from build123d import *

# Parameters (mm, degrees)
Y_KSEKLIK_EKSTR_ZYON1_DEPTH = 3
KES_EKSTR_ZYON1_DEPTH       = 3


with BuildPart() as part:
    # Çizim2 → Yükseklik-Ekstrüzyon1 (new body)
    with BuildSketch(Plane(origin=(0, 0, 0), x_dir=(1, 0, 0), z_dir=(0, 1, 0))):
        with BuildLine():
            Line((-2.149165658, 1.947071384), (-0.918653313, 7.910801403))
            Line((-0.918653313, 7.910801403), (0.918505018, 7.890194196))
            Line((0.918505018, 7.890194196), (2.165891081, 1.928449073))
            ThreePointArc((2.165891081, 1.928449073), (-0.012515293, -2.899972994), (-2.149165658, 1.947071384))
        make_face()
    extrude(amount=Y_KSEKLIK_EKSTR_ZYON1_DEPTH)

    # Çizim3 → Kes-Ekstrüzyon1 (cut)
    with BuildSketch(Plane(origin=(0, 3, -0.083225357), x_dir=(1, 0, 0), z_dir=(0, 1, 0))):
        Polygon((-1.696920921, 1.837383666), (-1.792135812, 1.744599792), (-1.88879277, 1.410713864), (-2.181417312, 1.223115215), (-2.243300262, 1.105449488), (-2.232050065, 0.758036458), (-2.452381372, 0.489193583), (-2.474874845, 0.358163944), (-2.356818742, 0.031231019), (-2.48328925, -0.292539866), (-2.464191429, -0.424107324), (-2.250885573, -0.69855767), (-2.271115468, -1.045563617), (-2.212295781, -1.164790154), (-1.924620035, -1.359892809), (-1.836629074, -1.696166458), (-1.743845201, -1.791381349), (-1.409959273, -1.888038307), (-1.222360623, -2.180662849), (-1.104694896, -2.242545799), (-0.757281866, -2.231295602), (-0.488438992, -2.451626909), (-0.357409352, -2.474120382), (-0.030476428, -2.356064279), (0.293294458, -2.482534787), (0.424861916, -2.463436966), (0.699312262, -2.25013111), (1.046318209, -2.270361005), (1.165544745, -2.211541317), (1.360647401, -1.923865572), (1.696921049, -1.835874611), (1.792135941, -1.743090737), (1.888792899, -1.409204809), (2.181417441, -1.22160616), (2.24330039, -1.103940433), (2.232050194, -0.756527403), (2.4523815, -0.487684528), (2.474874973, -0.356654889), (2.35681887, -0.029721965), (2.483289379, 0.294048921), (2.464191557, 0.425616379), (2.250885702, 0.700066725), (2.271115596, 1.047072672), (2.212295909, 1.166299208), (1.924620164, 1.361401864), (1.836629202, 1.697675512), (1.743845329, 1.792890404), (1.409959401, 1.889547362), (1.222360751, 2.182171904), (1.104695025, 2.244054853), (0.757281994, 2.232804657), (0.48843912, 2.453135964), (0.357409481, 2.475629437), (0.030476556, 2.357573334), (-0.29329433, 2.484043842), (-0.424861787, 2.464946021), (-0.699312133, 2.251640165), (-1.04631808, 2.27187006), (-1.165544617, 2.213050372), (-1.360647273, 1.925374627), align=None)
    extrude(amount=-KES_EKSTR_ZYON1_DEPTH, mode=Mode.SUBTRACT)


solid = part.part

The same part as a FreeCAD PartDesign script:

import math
import FreeCAD as App
import Part
import Sketcher

V = App.Vector
Q = App.Units.Quantity


def add_polygon(sketch, points):
    """Adds a closed chain of lines whose ends are joined by coincident constraints."""
    first, n = sketch.GeometryCount, len(points)
    for a, b in zip(points, points[1:] + points[:1]):
        sketch.addGeometry(Part.LineSegment(App.Vector(*a, 0), App.Vector(*b, 0)), False)
    for i in range(n):
        sketch.addConstraint(Sketcher.Constraint("Coincident", first + i, 2, first + (i + 1) % n, 1))

doc = App.newDocument("Part")
body = doc.addObject("PartDesign::Body", "Body")

# Sketch on XZ plane
sketch1 = body.newObject("Sketcher::SketchObject", "Sketch")
sketch1.AttachmentSupport = (doc.getObject("XZ_Plane"), [""])
sketch1.MapMode = "FlatFace"
sketch1.addGeometry([
    Part.LineSegment(V(-0.9, -7.9, 0), V(-2.1, -1.9, 0)),
    Part.ArcOfCircle(Part.Circle(V(0, 0, 0), V(0, 0, 1), 2.9), math.radians(-42), math.radians(222)),
    Part.LineSegment(V(2.2, -1.9, 0), V(0.9, -7.9, 0)),
    Part.LineSegment(V(0.9, -7.9, 0), V(-0.9, -7.9, 0)),
], False)
sketch1.addConstraint([
    Sketcher.Constraint("Coincident", 0, 2, 1, 2),
    Sketcher.Constraint("Coincident", 1, 1, 2, 1),
    Sketcher.Constraint("Coincident", 2, 2, 3, 1),
    Sketcher.Constraint("Coincident", 3, 2, 0, 1),
    Sketcher.Constraint("Coincident", 1, 3, -1, 1),
    Sketcher.Constraint("Radius", 1, Q("2.9 mm")),
    Sketcher.Constraint("DistanceY", 3, 2, -1, 1, Q("7.910801 mm")),
    Sketcher.Constraint("DistanceY", 0, 2, -1, 1, Q("1.947071 mm")),
    Sketcher.Constraint("DistanceX", -1, 1, 1, 1, Q("2.165891 mm")),
    Sketcher.Constraint("DistanceX", 0, 2, 2, 2, Q("3.067671 mm")),
    Sketcher.Constraint("DistanceX", 3, 2, 2, 2, Q("1.837158 mm")),
    Sketcher.Constraint("Distance", 2, Q("6.090844 mm")),
])
pad1 = body.newObject("PartDesign::Pad", "Pad")
pad1.Profile = sketch1
pad1.Length = 3
pad1.Reversed = True

# Sketch on XZ plane
sketch2 = body.newObject("Sketcher::SketchObject", "Sketch001")
sketch2.AttachmentSupport = (doc.getObject("XZ_Plane"), [""])
sketch2.MapMode = "FlatFace"
sketch2.AttachmentOffset = App.Placement(V(0, 0, -3), App.Rotation())
add_polygon(sketch2, [(-1.696921, -1.920609), (-1.792136, -1.827825), (-1.888793, -1.493939), (-2.181417, -1.306341), (-2.2433, -1.188675), (-2.23205, -0.841262), (-2.452381, -0.572419), (-2.474875, -0.441389), (-2.356819, -0.114456), (-2.483289, 0.209315), (-2.464191, 0.340882), (-2.250886, 0.615332), (-2.271115, 0.962338), (-2.212296, 1.081565), (-1.92462, 1.276667), (-1.836629, 1.612941), (-1.743845, 1.708156), (-1.409959, 1.804813), (-1.222361, 2.097437), (-1.104695, 2.15932), (-0.757282, 2.14807), (-0.488439, 2.368402), (-0.357409, 2.390895), (-0.030476, 2.272839), (0.293294, 2.399309), (0.424862, 2.380212), (0.699312, 2.166906), (1.046318, 2.187136), (1.165545, 2.128316), (1.360647, 1.84064), (1.696921, 1.752649), (1.792136, 1.659865), (1.888793, 1.325979), (2.181417, 1.138381), (2.2433, 1.020715), (2.23205, 0.673302), (2.452381, 0.404459), (2.474875, 0.27343), (2.356819, -0.053503), (2.483289, -0.377274), (2.464192, -0.508842), (2.250886, -0.783292), (2.271116, -1.130298), (2.212296, -1.249525), (1.92462, -1.444627), (1.836629, -1.780901), (1.743845, -1.876116), (1.409959, -1.972773), (1.222361, -2.265397), (1.104695, -2.32728), (0.757282, -2.31603), (0.488439, -2.536361), (0.357409, -2.558855), (0.030477, -2.440799), (-0.293294, -2.567269), (-0.424862, -2.548171), (-0.699312, -2.334866), (-1.046318, -2.355095), (-1.165545, -2.296276), (-1.360647, -2.0086)])  # lines 0-59
sketch2.addConstraint([
    Sketcher.Constraint("DistanceX", 3, 2, -1, 1, Q("2.2433 mm")),
    Sketcher.Constraint("DistanceY", -1, 1, 20, 2, Q("2.368402 mm")),
    Sketcher.Constraint("DistanceX", -1, 1, 33, 2, Q("2.2433 mm")),
    Sketcher.Constraint("DistanceY", 41, 2, -1, 1, Q("1.130298 mm")),
    Sketcher.Constraint("DistanceY", 44, 2, -1, 1, Q("1.780901 mm")),
    Sketcher.Constraint("DistanceY", 52, 2, -1, 1, Q("2.440799 mm")),
    Sketcher.Constraint("DistanceY", 58, 2, -1, 1, Q("2.0086 mm")),
    Sketcher.Constraint("DistanceY", 1, 2, 2, 2, Q("0.187599 mm")),
    Sketcher.Constraint("DistanceX", 7, 2, 2, 2, Q("0.175401 mm")),
    Sketcher.Constraint("DistanceY", 5, 2, 9, 2, Q("0.913301 mm")),
    Sketcher.Constraint("DistanceX", 16, 2, 17, 2, Q("0.187599 mm")),
    Sketcher.Constraint("DistanceY", 17, 2, 22, 2, Q("0.175401 mm")),
    Sketcher.Constraint("DistanceX", 20, 2, 24, 2, Q("0.913301 mm")),
    Sketcher.Constraint("DistanceY", 32, 2, 31, 2, Q("0.187599 mm")),
    Sketcher.Constraint("DistanceX", 32, 2, 37, 2, Q("0.175401 mm")),
    Sketcher.Constraint("DistanceY", 39, 2, 35, 2, Q("0.913301 mm")),
    Sketcher.Constraint("DistanceX", 47, 2, 46, 2, Q("0.187599 mm")),
    Sketcher.Constraint("DistanceY", 52, 2, 47, 2, Q("0.175401 mm")),
    Sketcher.Constraint("DistanceX", 54, 2, 50, 2, Q("0.913301 mm")),
    Sketcher.Constraint("DistanceY", 1, 2, -1, 1, Q("1.493939 mm")),
    Sketcher.Constraint("DistanceX", 4, 2, -1, 1, Q("2.23205 mm")),
    Sketcher.Constraint("DistanceY", 4, 2, -1, 1, Q("0.841262 mm")),
    Sketcher.Constraint("DistanceX", 5, 2, -1, 1, Q("2.452381 mm")),
    Sketcher.Constraint("DistanceY", 5, 2, -1, 1, Q("0.572419 mm")),
    Sketcher.Constraint("DistanceY", 6, 2, -1, 1, Q("0.441389 mm")),
    Sketcher.Constraint("DistanceX", 7, 2, -1, 1, Q("2.356819 mm")),
    Sketcher.Constraint("DistanceX", 8, 2, -1, 1, Q("2.483289 mm")),
    Sketcher.Constraint("DistanceX", 9, 2, -1, 1, Q("2.464191 mm")),
    Sketcher.Constraint("DistanceY", -1, 1, 11, 2, Q("0.962338 mm")),
    Sketcher.Constraint("DistanceX", 13, 2, -1, 1, Q("1.92462 mm")),
    Sketcher.Constraint("DistanceX", 14, 2, -1, 1, Q("1.836629 mm")),
    Sketcher.Constraint("DistanceY", -1, 1, 14, 2, Q("1.612941 mm")),
    Sketcher.Constraint("DistanceX", 16, 2, -1, 1, Q("1.409959 mm")),
    Sketcher.Constraint("DistanceY", -1, 1, 18, 2, Q("2.15932 mm")),
    Sketcher.Constraint("DistanceX", 19, 2, -1, 1, Q("0.757282 mm")),
    Sketcher.Constraint("DistanceY", -1, 1, 19, 2, Q("2.14807 mm")),
    Sketcher.Constraint("DistanceX", 20, 2, -1, 1, Q("0.488439 mm")),
    Sketcher.Constraint("DistanceX", 21, 2, -1, 1, Q("0.357409 mm")),
    Sketcher.Constraint("DistanceY", -1, 1, 22, 2, Q("2.272839 mm")),
    Sketcher.Constraint("DistanceY", -1, 1, 23, 2, Q("2.399309 mm")),
    Sketcher.Constraint("DistanceY", -1, 1, 24, 2, Q("2.380212 mm")),
    Sketcher.Constraint("DistanceX", -1, 1, 26, 2, Q("1.046318 mm")),
    Sketcher.Constraint("DistanceY", -1, 1, 28, 2, Q("1.84064 mm")),
    Sketcher.Constraint("DistanceX", -1, 1, 29, 2, Q("1.696921 mm")),
    Sketcher.Constraint("DistanceY", -1, 1, 29, 2, Q("1.752649 mm")),
    Sketcher.Constraint("DistanceY", -1, 1, 31, 2, Q("1.325979 mm")),
    Sketcher.Constraint("DistanceX", -1, 1, 34, 2, Q("2.23205 mm")),
    Sketcher.Constraint("DistanceX", -1, 1, 35, 2, Q("2.452381 mm")),
    Sketcher.Constraint("DistanceY", -1, 1, 35, 2, Q("0.404459 mm")),
    Sketcher.Constraint("DistanceY", -1, 1, 36, 2, Q("0.27343 mm")),
    Sketcher.Constraint("DistanceX", -1, 1, 37, 2, Q("2.356819 mm")),
    Sketcher.Constraint("DistanceX", -1, 1, 38, 2, Q("2.483289 mm")),
    Sketcher.Constraint("DistanceX", -1, 1, 39, 2, Q("2.464192 mm")),
    Sketcher.Constraint("DistanceX", -1, 1, 43, 2, Q("1.92462 mm")),
    Sketcher.Constraint("DistanceX", -1, 1, 44, 2, Q("1.836629 mm")),
    Sketcher.Constraint("DistanceX", -1, 1, 46, 2, Q("1.409959 mm")),
    Sketcher.Constraint("DistanceY", 48, 2, -1, 1, Q("2.32728 mm")),
    Sketcher.Constraint("DistanceX", -1, 1, 49, 2, Q("0.757282 mm")),
    Sketcher.Constraint("DistanceY", 49, 2, -1, 1, Q("2.31603 mm")),
    Sketcher.Constraint("DistanceX", -1, 1, 50, 2, Q("0.488439 mm")),
    Sketcher.Constraint("DistanceY", 50, 2, -1, 1, Q("2.536361 mm")),
    Sketcher.Constraint("DistanceX", -1, 1, 51, 2, Q("0.357409 mm")),
    Sketcher.Constraint("DistanceY", 53, 2, -1, 1, Q("2.567269 mm")),
    Sketcher.Constraint("DistanceY", 54, 2, -1, 1, Q("2.548171 mm")),
    Sketcher.Constraint("DistanceX", 56, 2, -1, 1, Q("1.046318 mm")),
    Sketcher.Constraint("DistanceX", 59, 2, -1, 1, Q("1.696921 mm")),
    Sketcher.Constraint("DistanceY", 59, 2, -1, 1, Q("1.920609 mm")),
    Sketcher.Constraint("DistanceX", 2, 2, 0, 2, Q("0.389282 mm")),
    Sketcher.Constraint("DistanceY", 0, 2, 3, 2, Q("0.63915 mm")),
    Sketcher.Constraint("DistanceX", 5, 2, 1, 2, Q("0.563589 mm")),
    Sketcher.Constraint("DistanceY", 3, 2, 7, 2, Q("1.074218 mm")),
    Sketcher.Constraint("DistanceY", 7, 2, 8, 2, Q("0.323771 mm")),
    Sketcher.Constraint("DistanceY", 7, 2, 9, 2, Q("0.455338 mm")),
    Sketcher.Constraint("DistanceY", 9, 2, 10, 2, Q("0.27445 mm")),
    Sketcher.Constraint("DistanceX", 6, 2, 10, 2, Q("0.223989 mm")),
    Sketcher.Constraint("DistanceX", 11, 2, 10, 2, Q("0.02023 mm")),
    Sketcher.Constraint("DistanceX", 11, 2, 12, 2, Q("0.05882 mm")),
    Sketcher.Constraint("DistanceY", 8, 2, 12, 2, Q("0.87225 mm")),
    Sketcher.Constraint("DistanceY", 11, 2, 13, 2, Q("0.314329 mm")),
    Sketcher.Constraint("DistanceY", 13, 2, 15, 2, Q("0.431489 mm")),
    Sketcher.Constraint("DistanceX", 12, 2, 15, 2, Q("0.468451 mm")),
    Sketcher.Constraint("DistanceY", 14, 2, 16, 2, Q("0.191872 mm")),
    Sketcher.Constraint("DistanceX", 15, 2, 18, 2, Q("0.63915 mm")),
    Sketcher.Constraint("DistanceX", 18, 2, 22, 2, Q("1.074218 mm")),
    Sketcher.Constraint("DistanceX", 22, 2, 23, 2, Q("0.323771 mm")),
    Sketcher.Constraint("DistanceX", 22, 2, 24, 2, Q("0.455338 mm")),
    Sketcher.Constraint("DistanceX", 24, 2, 25, 2, Q("0.27445 mm")),
    Sketcher.Constraint("DistanceY", 25, 2, 21, 2, Q("0.223989 mm")),
    Sketcher.Constraint("DistanceY", 25, 2, 26, 2, Q("0.02023 mm")),
    Sketcher.Constraint("DistanceY", 27, 2, 26, 2, Q("0.05882 mm")),
    Sketcher.Constraint("DistanceX", 23, 2, 27, 2, Q("0.87225 mm")),
    Sketcher.Constraint("DistanceX", 26, 2, 28, 2, Q("0.314329 mm")),
    Sketcher.Constraint("DistanceX", 28, 2, 30, 2, Q("0.431489 mm")),
    Sketcher.Constraint("DistanceY", 30, 2, 27, 2, Q("0.468451 mm")),
    Sketcher.Constraint("DistanceX", 29, 2, 31, 2, Q("0.191872 mm")),
    Sketcher.Constraint("DistanceY", 33, 2, 30, 2, Q("0.63915 mm")),
    Sketcher.Constraint("DistanceY", 34, 2, 32, 2, Q("0.465079 mm")),
    Sketcher.Constraint("DistanceY", 37, 2, 33, 2, Q("1.074218 mm")),
    Sketcher.Constraint("DistanceY", 38, 2, 37, 2, Q("0.323771 mm")),
    Sketcher.Constraint("DistanceY", 39, 2, 37, 2, Q("0.455338 mm")),
    Sketcher.Constraint("DistanceY", 40, 2, 39, 2, Q("0.27445 mm")),
    Sketcher.Constraint("DistanceX", 40, 2, 36, 2, Q("0.223989 mm")),
    Sketcher.Constraint("DistanceX", 40, 2, 41, 2, Q("0.02023 mm")),
    Sketcher.Constraint("DistanceX", 42, 2, 41, 2, Q("0.05882 mm")),
    Sketcher.Constraint("DistanceY", 42, 2, 38, 2, Q("0.87225 mm")),
    Sketcher.Constraint("DistanceY", 43, 2, 41, 2, Q("0.314329 mm")),
    Sketcher.Constraint("DistanceY", 45, 2, 43, 2, Q("0.431489 mm")),
    Sketcher.Constraint("DistanceX", 45, 2, 42, 2, Q("0.468451 mm")),
    Sketcher.Constraint("DistanceY", 46, 2, 44, 2, Q("0.191872 mm")),
    Sketcher.Constraint("DistanceX", 48, 2, 45, 2, Q("0.63915 mm")),
    Sketcher.Constraint("DistanceX", 52, 2, 48, 2, Q("1.074218 mm")),
    Sketcher.Constraint("DistanceX", 53, 2, 52, 2, Q("0.323771 mm")),
    Sketcher.Constraint("DistanceX", 54, 2, 52, 2, Q("0.455338 mm")),
    Sketcher.Constraint("DistanceX", 55, 2, 54, 2, Q("0.27445 mm")),
    Sketcher.Constraint("DistanceY", 51, 2, 55, 2, Q("0.223989 mm")),
    Sketcher.Constraint("DistanceY", 55, 2, 0, 2, Q("0.50704 mm")),
    Sketcher.Constraint("DistanceY", 56, 2, 55, 2, Q("0.02023 mm")),
    Sketcher.Constraint("DistanceY", 56, 2, 57, 2, Q("0.05882 mm")),
    Sketcher.Constraint("DistanceX", 0, 2, 57, 2, Q("0.626591 mm")),
    Sketcher.Constraint("DistanceX", 0, 2, 58, 2, Q("0.431489 mm")),
])
pocket1 = body.newObject("PartDesign::Pocket", "Pocket")
pocket1.Profile = sketch2
pocket1.Length = 3
pocket1.Reversed = True

doc.recompute()
